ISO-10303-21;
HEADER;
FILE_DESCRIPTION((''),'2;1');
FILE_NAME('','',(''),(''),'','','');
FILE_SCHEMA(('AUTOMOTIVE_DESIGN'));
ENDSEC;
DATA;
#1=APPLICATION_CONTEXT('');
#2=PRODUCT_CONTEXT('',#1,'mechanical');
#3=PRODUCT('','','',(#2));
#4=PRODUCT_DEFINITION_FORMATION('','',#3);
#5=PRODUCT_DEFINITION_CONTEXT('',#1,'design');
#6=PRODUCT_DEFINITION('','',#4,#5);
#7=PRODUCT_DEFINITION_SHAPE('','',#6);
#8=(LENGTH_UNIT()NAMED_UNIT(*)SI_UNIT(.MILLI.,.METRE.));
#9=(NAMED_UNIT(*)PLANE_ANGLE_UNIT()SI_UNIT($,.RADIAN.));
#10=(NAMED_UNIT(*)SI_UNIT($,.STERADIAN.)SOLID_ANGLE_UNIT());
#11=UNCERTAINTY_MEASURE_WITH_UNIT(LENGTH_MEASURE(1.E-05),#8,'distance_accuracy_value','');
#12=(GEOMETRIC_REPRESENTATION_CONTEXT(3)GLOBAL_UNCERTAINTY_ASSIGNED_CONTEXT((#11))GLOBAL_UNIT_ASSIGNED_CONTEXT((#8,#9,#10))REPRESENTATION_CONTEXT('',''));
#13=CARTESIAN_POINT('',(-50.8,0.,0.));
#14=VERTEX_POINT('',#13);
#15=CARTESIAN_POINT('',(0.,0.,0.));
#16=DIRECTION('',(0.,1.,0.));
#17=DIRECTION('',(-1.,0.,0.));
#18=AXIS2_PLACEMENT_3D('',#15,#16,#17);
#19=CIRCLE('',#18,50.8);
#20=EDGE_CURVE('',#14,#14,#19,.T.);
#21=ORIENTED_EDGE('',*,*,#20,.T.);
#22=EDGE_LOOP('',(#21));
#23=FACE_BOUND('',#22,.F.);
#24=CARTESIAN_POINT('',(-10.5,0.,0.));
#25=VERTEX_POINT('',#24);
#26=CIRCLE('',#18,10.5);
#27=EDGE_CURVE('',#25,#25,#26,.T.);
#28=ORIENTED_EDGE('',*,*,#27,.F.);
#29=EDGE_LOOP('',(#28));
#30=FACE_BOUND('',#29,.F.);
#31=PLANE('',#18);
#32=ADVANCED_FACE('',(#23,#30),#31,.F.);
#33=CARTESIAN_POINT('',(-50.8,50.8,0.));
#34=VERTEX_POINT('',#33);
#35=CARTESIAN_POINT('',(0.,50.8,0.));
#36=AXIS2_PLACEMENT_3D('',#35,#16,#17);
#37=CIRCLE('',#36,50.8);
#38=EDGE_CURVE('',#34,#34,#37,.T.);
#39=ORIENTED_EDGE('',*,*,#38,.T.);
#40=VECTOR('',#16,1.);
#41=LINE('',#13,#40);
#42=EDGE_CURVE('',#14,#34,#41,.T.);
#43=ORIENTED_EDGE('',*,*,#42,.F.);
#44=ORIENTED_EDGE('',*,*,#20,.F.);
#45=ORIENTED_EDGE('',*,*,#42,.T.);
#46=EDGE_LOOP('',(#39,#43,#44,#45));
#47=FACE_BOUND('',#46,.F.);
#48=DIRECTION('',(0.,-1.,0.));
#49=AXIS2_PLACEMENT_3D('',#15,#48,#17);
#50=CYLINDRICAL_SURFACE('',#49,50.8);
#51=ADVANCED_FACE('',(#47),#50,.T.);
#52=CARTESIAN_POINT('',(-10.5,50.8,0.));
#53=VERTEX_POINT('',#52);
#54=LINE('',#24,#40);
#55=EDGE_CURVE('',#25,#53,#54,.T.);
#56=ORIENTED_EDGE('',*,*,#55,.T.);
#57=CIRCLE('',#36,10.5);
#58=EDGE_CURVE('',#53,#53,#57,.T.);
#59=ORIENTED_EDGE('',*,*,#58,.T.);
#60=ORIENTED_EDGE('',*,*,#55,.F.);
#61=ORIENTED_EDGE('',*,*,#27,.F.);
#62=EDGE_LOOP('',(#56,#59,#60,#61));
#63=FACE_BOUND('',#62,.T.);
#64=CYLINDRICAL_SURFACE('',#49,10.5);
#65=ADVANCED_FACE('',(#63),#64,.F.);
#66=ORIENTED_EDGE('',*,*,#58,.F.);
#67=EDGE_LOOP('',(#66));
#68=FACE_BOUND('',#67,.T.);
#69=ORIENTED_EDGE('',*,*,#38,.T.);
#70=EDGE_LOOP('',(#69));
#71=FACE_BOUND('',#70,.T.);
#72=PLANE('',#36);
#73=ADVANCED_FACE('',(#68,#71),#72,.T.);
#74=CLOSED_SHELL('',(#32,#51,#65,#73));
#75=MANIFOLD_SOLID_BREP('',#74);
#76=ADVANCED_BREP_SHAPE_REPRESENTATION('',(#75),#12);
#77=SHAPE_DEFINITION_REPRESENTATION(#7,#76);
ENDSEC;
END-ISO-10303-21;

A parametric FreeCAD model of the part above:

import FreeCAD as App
import Part
import Sketcher
from FreeCAD import Vector
Q = App.Units.Quantity

doc = App.newDocument("Part")
body = doc.addObject("PartDesign::Body", "Body")

sketch1 = body.newObject("Sketcher::SketchObject", "Sketch")
sketch1.AttachmentSupport = (doc.getObject("XZ_Plane"), [""])
sketch1.MapMode = "FlatFace"
sketch1.addGeometry([
    Part.Circle(Vector(0, 0, 0), Vector(0, 0, 1), 51),
    Part.Circle(Vector(0, 0, 0), Vector(0, 0, 1), 10),
], False)
sketch1.addConstraint([
    Sketcher.Constraint("Coincident", 0, 3, -1, 1),
    Sketcher.Constraint("Coincident", 1, 3, -1, 1),
    Sketcher.Constraint("Diameter", 0, Q("4 in")),
    Sketcher.Constraint("Diameter", 1, Q("21 mm")),
])
pad1 = body.newObject("PartDesign::Pad", "Pad")
pad1.Profile = sketch1
pad1.Length = Q("2 in")
pad1.Reversed = True

doc.recompute()
